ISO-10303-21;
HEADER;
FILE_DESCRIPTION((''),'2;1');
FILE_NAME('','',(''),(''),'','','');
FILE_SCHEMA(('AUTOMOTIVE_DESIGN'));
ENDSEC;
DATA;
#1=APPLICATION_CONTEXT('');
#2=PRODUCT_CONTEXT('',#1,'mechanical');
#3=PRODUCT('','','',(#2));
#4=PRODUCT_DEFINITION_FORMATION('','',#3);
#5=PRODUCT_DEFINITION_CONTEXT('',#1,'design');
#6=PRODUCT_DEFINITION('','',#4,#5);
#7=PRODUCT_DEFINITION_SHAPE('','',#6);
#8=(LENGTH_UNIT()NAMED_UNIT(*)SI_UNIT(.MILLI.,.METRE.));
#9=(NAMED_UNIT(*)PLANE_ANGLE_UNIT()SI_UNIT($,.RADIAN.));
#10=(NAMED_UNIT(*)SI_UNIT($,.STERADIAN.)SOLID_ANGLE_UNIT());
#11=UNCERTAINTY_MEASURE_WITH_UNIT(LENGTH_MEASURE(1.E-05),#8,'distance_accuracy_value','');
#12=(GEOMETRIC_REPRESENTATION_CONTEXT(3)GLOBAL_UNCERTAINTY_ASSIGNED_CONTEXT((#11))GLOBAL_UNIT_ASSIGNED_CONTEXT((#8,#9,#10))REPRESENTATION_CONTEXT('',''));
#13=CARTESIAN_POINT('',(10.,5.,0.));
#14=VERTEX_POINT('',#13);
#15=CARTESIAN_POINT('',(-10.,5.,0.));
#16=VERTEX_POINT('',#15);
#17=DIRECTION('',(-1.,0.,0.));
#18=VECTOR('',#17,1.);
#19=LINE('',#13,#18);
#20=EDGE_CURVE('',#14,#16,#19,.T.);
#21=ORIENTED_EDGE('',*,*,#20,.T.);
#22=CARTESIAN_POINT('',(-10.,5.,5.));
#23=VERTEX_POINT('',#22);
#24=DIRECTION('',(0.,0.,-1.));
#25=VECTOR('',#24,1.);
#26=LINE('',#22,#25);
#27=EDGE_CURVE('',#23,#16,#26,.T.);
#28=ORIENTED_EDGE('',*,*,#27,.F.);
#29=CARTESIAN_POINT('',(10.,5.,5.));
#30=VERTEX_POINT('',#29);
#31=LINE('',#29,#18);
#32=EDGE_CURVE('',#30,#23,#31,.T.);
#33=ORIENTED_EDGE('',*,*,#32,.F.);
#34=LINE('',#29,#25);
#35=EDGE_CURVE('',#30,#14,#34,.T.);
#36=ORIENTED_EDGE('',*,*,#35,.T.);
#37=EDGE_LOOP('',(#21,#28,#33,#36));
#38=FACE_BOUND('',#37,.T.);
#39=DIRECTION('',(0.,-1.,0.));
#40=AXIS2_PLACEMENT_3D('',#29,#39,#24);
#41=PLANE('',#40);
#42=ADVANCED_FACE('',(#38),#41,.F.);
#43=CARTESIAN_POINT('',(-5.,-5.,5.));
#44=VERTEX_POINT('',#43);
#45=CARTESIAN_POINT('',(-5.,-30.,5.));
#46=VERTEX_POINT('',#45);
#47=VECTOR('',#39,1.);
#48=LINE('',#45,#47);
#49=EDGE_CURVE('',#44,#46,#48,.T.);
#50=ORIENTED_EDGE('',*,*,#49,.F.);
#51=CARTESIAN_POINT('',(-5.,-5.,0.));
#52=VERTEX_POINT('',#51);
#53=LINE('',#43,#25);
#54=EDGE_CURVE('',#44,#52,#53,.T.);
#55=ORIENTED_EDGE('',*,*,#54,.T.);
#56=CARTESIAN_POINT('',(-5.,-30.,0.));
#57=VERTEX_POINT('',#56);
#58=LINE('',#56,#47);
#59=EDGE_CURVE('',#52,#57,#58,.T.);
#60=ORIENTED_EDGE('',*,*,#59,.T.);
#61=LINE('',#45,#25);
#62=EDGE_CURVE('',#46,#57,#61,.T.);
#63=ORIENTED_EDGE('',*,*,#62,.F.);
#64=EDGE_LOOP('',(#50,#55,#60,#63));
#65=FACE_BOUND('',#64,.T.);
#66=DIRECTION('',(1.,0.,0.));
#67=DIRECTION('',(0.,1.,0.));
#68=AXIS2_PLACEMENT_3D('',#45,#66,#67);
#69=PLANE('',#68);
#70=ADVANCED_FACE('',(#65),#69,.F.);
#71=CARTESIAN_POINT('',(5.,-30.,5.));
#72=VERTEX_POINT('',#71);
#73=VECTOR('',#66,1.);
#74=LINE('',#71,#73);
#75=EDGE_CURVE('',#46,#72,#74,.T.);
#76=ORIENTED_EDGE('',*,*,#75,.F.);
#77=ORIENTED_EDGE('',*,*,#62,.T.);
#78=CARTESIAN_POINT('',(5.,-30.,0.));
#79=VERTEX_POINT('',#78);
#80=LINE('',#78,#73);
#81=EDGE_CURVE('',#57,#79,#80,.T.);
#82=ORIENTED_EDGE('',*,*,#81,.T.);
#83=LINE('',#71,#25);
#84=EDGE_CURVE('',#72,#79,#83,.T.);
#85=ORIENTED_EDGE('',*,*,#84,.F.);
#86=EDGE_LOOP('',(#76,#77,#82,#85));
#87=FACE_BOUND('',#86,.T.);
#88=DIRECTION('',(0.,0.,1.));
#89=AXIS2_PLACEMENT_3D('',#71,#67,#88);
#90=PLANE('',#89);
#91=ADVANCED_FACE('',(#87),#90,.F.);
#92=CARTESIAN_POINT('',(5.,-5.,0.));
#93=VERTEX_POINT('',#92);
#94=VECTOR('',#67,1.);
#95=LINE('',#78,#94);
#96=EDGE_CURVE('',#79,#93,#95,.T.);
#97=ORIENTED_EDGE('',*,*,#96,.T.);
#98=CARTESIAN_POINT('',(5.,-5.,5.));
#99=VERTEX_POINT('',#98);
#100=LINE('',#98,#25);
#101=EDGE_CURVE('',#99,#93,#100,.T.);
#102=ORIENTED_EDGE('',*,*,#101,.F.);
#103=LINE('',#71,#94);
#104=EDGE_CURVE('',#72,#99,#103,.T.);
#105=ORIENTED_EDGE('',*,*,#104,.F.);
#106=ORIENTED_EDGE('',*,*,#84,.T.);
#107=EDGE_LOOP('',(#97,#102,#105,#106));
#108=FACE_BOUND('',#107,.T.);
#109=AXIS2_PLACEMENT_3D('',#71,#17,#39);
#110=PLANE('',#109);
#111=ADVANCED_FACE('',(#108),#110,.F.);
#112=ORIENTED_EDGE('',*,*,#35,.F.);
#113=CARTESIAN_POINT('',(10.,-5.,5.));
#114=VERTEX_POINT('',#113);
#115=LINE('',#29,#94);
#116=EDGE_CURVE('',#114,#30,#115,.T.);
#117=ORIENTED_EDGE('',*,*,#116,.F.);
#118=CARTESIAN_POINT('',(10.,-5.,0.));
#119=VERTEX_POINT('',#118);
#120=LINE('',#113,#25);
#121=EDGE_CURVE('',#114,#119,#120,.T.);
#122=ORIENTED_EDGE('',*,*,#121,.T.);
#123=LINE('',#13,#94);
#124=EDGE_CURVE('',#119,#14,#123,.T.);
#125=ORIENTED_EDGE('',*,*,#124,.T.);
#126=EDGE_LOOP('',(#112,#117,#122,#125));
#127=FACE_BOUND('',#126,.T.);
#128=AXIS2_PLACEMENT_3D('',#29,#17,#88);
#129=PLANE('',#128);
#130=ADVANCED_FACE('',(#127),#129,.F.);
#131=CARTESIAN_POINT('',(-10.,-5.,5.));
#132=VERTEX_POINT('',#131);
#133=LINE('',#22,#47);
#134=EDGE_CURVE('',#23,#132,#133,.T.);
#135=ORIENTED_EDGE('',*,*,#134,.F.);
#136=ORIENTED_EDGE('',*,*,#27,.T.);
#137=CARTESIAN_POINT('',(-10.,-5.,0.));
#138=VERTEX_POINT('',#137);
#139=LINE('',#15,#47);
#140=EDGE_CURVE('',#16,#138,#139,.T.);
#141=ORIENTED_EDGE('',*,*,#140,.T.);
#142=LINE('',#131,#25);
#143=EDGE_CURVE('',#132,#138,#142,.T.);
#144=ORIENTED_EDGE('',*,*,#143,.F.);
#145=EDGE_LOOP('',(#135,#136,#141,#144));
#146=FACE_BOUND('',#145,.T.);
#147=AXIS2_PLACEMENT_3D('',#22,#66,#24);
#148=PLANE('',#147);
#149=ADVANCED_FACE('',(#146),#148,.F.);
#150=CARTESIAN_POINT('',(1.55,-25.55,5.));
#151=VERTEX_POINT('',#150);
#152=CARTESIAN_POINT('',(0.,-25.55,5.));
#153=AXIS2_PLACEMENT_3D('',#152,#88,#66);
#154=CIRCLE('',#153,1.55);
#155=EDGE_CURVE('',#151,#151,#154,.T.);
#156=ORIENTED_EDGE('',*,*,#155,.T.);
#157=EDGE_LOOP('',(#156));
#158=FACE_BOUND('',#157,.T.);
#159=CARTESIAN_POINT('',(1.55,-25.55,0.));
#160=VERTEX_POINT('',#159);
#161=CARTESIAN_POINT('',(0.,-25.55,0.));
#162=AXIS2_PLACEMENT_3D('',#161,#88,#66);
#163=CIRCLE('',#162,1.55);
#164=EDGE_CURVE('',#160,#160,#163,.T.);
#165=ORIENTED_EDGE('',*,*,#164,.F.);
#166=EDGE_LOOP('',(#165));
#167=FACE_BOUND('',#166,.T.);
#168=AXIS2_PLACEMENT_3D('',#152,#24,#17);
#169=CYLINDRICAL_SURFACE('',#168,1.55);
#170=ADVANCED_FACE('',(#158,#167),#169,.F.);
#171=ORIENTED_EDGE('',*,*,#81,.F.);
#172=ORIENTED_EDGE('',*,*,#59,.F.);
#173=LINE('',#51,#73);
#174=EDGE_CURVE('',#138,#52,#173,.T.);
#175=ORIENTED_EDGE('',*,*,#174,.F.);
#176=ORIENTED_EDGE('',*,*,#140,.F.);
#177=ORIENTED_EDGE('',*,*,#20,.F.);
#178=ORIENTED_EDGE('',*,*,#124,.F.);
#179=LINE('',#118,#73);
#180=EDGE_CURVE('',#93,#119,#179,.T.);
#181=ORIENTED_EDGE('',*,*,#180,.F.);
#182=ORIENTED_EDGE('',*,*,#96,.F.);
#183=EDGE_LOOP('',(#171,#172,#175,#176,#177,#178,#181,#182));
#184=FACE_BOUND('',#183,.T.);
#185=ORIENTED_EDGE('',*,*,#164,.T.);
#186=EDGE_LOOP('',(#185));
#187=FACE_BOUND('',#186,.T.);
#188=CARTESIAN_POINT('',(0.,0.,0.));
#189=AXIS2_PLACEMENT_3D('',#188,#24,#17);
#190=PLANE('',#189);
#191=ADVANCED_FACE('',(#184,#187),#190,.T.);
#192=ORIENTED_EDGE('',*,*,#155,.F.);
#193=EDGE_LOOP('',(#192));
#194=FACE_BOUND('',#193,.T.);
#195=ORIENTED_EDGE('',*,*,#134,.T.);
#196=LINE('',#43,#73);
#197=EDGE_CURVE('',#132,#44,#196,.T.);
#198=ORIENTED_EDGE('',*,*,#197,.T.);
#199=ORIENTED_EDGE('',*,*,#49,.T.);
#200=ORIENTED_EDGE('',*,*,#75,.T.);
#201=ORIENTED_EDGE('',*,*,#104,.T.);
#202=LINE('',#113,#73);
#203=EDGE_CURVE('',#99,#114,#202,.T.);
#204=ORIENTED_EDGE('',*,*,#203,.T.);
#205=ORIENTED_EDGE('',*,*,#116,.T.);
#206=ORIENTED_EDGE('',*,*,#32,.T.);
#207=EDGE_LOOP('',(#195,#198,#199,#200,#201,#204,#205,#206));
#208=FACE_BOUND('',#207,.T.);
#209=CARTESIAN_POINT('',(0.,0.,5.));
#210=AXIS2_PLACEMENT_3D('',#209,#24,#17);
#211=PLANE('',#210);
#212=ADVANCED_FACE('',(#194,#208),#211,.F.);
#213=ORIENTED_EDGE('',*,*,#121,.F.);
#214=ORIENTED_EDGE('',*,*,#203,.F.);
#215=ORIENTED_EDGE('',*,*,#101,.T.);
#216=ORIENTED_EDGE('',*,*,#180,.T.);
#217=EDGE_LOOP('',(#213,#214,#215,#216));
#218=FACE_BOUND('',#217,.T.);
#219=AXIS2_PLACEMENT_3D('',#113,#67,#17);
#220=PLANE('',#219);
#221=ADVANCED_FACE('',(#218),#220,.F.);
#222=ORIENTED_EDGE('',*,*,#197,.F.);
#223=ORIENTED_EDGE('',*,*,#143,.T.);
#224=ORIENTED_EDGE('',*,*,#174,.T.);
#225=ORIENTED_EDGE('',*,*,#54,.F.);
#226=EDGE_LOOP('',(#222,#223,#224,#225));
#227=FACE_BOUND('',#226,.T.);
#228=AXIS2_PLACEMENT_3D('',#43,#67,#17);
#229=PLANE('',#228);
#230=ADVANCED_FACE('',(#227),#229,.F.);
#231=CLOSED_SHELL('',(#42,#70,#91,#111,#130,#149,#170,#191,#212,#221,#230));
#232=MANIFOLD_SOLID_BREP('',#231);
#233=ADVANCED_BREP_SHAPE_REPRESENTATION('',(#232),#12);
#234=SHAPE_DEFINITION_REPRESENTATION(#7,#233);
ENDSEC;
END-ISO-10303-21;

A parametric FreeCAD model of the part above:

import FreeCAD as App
import Part
import Sketcher

V = App.Vector
Q = App.Units.Quantity


def add_polygon(sketch, points):
    """Adds a closed chain of lines whose ends are joined by coincident constraints."""
    first, n = sketch.GeometryCount, len(points)
    for a, b in zip(points, points[1:] + points[:1]):
        sketch.addGeometry(Part.LineSegment(App.Vector(*a, 0), App.Vector(*b, 0)), False)
    for i in range(n):
        sketch.addConstraint(Sketcher.Constraint("Coincident", first + i, 2, first + (i + 1) % n, 1))

doc = App.newDocument("Part")
body = doc.addObject("PartDesign::Body", "Body")

# Sketch on XY plane
sketch1 = body.newObject("Sketcher::SketchObject", "Sketch")
sketch1.AttachmentSupport = (doc.getObject("XY_Plane"), [""])
sketch1.MapMode = "FlatFace"
add_polygon(sketch1, [(-10, -5), (-5, -5), (-5, -30), (5, -30), (5, -5), (10, -5), (10, 5), (-10, 5)])  # lines 0-7
sketch1.addGeometry(Part.Circle(V(0, -25.6, 0), V(0, 0, 1), 1.6), False)  # 8
sketch1.addConstraint([
    Sketcher.Constraint("Horizontal", 0),
    Sketcher.Constraint("Vertical", 1),
    Sketcher.Constraint("Horizontal", 2),
    Sketcher.Constraint("Vertical", 3),
    Sketcher.Constraint("Horizontal", 4),
    Sketcher.Constraint("Vertical", 5),
    Sketcher.Constraint("Horizontal", 6),
    Sketcher.Constraint("Vertical", 7),
    Sketcher.Constraint("Symmetric", 4, 2, 6, 2, -1, 1),
    Sketcher.Constraint("Symmetric", 0, 2, 3, 2, -2),
    Sketcher.Constraint("PointOnObject", 8, 3, -2),
    Sketcher.Constraint("Equal", 2, 5),
    Sketcher.Constraint("Diameter", 8, Q("3.1 mm")),
    Sketcher.Constraint("DistanceX", 0, 1, 0, 2, Q("5 mm")),
    Sketcher.Constraint("DistanceX", 2, 1, 2, 2, Q("10 mm")),
    Sketcher.Constraint("DistanceY", 1, 2, 1, 1, Q("25 mm")),
    Sketcher.Constraint("DistanceY", 8, 3, -1, 1, Q("25.55 mm")),
])
pad1 = body.newObject("PartDesign::Pad", "Pad")
pad1.Profile = sketch1
pad1.Length = 5

doc.recompute()
